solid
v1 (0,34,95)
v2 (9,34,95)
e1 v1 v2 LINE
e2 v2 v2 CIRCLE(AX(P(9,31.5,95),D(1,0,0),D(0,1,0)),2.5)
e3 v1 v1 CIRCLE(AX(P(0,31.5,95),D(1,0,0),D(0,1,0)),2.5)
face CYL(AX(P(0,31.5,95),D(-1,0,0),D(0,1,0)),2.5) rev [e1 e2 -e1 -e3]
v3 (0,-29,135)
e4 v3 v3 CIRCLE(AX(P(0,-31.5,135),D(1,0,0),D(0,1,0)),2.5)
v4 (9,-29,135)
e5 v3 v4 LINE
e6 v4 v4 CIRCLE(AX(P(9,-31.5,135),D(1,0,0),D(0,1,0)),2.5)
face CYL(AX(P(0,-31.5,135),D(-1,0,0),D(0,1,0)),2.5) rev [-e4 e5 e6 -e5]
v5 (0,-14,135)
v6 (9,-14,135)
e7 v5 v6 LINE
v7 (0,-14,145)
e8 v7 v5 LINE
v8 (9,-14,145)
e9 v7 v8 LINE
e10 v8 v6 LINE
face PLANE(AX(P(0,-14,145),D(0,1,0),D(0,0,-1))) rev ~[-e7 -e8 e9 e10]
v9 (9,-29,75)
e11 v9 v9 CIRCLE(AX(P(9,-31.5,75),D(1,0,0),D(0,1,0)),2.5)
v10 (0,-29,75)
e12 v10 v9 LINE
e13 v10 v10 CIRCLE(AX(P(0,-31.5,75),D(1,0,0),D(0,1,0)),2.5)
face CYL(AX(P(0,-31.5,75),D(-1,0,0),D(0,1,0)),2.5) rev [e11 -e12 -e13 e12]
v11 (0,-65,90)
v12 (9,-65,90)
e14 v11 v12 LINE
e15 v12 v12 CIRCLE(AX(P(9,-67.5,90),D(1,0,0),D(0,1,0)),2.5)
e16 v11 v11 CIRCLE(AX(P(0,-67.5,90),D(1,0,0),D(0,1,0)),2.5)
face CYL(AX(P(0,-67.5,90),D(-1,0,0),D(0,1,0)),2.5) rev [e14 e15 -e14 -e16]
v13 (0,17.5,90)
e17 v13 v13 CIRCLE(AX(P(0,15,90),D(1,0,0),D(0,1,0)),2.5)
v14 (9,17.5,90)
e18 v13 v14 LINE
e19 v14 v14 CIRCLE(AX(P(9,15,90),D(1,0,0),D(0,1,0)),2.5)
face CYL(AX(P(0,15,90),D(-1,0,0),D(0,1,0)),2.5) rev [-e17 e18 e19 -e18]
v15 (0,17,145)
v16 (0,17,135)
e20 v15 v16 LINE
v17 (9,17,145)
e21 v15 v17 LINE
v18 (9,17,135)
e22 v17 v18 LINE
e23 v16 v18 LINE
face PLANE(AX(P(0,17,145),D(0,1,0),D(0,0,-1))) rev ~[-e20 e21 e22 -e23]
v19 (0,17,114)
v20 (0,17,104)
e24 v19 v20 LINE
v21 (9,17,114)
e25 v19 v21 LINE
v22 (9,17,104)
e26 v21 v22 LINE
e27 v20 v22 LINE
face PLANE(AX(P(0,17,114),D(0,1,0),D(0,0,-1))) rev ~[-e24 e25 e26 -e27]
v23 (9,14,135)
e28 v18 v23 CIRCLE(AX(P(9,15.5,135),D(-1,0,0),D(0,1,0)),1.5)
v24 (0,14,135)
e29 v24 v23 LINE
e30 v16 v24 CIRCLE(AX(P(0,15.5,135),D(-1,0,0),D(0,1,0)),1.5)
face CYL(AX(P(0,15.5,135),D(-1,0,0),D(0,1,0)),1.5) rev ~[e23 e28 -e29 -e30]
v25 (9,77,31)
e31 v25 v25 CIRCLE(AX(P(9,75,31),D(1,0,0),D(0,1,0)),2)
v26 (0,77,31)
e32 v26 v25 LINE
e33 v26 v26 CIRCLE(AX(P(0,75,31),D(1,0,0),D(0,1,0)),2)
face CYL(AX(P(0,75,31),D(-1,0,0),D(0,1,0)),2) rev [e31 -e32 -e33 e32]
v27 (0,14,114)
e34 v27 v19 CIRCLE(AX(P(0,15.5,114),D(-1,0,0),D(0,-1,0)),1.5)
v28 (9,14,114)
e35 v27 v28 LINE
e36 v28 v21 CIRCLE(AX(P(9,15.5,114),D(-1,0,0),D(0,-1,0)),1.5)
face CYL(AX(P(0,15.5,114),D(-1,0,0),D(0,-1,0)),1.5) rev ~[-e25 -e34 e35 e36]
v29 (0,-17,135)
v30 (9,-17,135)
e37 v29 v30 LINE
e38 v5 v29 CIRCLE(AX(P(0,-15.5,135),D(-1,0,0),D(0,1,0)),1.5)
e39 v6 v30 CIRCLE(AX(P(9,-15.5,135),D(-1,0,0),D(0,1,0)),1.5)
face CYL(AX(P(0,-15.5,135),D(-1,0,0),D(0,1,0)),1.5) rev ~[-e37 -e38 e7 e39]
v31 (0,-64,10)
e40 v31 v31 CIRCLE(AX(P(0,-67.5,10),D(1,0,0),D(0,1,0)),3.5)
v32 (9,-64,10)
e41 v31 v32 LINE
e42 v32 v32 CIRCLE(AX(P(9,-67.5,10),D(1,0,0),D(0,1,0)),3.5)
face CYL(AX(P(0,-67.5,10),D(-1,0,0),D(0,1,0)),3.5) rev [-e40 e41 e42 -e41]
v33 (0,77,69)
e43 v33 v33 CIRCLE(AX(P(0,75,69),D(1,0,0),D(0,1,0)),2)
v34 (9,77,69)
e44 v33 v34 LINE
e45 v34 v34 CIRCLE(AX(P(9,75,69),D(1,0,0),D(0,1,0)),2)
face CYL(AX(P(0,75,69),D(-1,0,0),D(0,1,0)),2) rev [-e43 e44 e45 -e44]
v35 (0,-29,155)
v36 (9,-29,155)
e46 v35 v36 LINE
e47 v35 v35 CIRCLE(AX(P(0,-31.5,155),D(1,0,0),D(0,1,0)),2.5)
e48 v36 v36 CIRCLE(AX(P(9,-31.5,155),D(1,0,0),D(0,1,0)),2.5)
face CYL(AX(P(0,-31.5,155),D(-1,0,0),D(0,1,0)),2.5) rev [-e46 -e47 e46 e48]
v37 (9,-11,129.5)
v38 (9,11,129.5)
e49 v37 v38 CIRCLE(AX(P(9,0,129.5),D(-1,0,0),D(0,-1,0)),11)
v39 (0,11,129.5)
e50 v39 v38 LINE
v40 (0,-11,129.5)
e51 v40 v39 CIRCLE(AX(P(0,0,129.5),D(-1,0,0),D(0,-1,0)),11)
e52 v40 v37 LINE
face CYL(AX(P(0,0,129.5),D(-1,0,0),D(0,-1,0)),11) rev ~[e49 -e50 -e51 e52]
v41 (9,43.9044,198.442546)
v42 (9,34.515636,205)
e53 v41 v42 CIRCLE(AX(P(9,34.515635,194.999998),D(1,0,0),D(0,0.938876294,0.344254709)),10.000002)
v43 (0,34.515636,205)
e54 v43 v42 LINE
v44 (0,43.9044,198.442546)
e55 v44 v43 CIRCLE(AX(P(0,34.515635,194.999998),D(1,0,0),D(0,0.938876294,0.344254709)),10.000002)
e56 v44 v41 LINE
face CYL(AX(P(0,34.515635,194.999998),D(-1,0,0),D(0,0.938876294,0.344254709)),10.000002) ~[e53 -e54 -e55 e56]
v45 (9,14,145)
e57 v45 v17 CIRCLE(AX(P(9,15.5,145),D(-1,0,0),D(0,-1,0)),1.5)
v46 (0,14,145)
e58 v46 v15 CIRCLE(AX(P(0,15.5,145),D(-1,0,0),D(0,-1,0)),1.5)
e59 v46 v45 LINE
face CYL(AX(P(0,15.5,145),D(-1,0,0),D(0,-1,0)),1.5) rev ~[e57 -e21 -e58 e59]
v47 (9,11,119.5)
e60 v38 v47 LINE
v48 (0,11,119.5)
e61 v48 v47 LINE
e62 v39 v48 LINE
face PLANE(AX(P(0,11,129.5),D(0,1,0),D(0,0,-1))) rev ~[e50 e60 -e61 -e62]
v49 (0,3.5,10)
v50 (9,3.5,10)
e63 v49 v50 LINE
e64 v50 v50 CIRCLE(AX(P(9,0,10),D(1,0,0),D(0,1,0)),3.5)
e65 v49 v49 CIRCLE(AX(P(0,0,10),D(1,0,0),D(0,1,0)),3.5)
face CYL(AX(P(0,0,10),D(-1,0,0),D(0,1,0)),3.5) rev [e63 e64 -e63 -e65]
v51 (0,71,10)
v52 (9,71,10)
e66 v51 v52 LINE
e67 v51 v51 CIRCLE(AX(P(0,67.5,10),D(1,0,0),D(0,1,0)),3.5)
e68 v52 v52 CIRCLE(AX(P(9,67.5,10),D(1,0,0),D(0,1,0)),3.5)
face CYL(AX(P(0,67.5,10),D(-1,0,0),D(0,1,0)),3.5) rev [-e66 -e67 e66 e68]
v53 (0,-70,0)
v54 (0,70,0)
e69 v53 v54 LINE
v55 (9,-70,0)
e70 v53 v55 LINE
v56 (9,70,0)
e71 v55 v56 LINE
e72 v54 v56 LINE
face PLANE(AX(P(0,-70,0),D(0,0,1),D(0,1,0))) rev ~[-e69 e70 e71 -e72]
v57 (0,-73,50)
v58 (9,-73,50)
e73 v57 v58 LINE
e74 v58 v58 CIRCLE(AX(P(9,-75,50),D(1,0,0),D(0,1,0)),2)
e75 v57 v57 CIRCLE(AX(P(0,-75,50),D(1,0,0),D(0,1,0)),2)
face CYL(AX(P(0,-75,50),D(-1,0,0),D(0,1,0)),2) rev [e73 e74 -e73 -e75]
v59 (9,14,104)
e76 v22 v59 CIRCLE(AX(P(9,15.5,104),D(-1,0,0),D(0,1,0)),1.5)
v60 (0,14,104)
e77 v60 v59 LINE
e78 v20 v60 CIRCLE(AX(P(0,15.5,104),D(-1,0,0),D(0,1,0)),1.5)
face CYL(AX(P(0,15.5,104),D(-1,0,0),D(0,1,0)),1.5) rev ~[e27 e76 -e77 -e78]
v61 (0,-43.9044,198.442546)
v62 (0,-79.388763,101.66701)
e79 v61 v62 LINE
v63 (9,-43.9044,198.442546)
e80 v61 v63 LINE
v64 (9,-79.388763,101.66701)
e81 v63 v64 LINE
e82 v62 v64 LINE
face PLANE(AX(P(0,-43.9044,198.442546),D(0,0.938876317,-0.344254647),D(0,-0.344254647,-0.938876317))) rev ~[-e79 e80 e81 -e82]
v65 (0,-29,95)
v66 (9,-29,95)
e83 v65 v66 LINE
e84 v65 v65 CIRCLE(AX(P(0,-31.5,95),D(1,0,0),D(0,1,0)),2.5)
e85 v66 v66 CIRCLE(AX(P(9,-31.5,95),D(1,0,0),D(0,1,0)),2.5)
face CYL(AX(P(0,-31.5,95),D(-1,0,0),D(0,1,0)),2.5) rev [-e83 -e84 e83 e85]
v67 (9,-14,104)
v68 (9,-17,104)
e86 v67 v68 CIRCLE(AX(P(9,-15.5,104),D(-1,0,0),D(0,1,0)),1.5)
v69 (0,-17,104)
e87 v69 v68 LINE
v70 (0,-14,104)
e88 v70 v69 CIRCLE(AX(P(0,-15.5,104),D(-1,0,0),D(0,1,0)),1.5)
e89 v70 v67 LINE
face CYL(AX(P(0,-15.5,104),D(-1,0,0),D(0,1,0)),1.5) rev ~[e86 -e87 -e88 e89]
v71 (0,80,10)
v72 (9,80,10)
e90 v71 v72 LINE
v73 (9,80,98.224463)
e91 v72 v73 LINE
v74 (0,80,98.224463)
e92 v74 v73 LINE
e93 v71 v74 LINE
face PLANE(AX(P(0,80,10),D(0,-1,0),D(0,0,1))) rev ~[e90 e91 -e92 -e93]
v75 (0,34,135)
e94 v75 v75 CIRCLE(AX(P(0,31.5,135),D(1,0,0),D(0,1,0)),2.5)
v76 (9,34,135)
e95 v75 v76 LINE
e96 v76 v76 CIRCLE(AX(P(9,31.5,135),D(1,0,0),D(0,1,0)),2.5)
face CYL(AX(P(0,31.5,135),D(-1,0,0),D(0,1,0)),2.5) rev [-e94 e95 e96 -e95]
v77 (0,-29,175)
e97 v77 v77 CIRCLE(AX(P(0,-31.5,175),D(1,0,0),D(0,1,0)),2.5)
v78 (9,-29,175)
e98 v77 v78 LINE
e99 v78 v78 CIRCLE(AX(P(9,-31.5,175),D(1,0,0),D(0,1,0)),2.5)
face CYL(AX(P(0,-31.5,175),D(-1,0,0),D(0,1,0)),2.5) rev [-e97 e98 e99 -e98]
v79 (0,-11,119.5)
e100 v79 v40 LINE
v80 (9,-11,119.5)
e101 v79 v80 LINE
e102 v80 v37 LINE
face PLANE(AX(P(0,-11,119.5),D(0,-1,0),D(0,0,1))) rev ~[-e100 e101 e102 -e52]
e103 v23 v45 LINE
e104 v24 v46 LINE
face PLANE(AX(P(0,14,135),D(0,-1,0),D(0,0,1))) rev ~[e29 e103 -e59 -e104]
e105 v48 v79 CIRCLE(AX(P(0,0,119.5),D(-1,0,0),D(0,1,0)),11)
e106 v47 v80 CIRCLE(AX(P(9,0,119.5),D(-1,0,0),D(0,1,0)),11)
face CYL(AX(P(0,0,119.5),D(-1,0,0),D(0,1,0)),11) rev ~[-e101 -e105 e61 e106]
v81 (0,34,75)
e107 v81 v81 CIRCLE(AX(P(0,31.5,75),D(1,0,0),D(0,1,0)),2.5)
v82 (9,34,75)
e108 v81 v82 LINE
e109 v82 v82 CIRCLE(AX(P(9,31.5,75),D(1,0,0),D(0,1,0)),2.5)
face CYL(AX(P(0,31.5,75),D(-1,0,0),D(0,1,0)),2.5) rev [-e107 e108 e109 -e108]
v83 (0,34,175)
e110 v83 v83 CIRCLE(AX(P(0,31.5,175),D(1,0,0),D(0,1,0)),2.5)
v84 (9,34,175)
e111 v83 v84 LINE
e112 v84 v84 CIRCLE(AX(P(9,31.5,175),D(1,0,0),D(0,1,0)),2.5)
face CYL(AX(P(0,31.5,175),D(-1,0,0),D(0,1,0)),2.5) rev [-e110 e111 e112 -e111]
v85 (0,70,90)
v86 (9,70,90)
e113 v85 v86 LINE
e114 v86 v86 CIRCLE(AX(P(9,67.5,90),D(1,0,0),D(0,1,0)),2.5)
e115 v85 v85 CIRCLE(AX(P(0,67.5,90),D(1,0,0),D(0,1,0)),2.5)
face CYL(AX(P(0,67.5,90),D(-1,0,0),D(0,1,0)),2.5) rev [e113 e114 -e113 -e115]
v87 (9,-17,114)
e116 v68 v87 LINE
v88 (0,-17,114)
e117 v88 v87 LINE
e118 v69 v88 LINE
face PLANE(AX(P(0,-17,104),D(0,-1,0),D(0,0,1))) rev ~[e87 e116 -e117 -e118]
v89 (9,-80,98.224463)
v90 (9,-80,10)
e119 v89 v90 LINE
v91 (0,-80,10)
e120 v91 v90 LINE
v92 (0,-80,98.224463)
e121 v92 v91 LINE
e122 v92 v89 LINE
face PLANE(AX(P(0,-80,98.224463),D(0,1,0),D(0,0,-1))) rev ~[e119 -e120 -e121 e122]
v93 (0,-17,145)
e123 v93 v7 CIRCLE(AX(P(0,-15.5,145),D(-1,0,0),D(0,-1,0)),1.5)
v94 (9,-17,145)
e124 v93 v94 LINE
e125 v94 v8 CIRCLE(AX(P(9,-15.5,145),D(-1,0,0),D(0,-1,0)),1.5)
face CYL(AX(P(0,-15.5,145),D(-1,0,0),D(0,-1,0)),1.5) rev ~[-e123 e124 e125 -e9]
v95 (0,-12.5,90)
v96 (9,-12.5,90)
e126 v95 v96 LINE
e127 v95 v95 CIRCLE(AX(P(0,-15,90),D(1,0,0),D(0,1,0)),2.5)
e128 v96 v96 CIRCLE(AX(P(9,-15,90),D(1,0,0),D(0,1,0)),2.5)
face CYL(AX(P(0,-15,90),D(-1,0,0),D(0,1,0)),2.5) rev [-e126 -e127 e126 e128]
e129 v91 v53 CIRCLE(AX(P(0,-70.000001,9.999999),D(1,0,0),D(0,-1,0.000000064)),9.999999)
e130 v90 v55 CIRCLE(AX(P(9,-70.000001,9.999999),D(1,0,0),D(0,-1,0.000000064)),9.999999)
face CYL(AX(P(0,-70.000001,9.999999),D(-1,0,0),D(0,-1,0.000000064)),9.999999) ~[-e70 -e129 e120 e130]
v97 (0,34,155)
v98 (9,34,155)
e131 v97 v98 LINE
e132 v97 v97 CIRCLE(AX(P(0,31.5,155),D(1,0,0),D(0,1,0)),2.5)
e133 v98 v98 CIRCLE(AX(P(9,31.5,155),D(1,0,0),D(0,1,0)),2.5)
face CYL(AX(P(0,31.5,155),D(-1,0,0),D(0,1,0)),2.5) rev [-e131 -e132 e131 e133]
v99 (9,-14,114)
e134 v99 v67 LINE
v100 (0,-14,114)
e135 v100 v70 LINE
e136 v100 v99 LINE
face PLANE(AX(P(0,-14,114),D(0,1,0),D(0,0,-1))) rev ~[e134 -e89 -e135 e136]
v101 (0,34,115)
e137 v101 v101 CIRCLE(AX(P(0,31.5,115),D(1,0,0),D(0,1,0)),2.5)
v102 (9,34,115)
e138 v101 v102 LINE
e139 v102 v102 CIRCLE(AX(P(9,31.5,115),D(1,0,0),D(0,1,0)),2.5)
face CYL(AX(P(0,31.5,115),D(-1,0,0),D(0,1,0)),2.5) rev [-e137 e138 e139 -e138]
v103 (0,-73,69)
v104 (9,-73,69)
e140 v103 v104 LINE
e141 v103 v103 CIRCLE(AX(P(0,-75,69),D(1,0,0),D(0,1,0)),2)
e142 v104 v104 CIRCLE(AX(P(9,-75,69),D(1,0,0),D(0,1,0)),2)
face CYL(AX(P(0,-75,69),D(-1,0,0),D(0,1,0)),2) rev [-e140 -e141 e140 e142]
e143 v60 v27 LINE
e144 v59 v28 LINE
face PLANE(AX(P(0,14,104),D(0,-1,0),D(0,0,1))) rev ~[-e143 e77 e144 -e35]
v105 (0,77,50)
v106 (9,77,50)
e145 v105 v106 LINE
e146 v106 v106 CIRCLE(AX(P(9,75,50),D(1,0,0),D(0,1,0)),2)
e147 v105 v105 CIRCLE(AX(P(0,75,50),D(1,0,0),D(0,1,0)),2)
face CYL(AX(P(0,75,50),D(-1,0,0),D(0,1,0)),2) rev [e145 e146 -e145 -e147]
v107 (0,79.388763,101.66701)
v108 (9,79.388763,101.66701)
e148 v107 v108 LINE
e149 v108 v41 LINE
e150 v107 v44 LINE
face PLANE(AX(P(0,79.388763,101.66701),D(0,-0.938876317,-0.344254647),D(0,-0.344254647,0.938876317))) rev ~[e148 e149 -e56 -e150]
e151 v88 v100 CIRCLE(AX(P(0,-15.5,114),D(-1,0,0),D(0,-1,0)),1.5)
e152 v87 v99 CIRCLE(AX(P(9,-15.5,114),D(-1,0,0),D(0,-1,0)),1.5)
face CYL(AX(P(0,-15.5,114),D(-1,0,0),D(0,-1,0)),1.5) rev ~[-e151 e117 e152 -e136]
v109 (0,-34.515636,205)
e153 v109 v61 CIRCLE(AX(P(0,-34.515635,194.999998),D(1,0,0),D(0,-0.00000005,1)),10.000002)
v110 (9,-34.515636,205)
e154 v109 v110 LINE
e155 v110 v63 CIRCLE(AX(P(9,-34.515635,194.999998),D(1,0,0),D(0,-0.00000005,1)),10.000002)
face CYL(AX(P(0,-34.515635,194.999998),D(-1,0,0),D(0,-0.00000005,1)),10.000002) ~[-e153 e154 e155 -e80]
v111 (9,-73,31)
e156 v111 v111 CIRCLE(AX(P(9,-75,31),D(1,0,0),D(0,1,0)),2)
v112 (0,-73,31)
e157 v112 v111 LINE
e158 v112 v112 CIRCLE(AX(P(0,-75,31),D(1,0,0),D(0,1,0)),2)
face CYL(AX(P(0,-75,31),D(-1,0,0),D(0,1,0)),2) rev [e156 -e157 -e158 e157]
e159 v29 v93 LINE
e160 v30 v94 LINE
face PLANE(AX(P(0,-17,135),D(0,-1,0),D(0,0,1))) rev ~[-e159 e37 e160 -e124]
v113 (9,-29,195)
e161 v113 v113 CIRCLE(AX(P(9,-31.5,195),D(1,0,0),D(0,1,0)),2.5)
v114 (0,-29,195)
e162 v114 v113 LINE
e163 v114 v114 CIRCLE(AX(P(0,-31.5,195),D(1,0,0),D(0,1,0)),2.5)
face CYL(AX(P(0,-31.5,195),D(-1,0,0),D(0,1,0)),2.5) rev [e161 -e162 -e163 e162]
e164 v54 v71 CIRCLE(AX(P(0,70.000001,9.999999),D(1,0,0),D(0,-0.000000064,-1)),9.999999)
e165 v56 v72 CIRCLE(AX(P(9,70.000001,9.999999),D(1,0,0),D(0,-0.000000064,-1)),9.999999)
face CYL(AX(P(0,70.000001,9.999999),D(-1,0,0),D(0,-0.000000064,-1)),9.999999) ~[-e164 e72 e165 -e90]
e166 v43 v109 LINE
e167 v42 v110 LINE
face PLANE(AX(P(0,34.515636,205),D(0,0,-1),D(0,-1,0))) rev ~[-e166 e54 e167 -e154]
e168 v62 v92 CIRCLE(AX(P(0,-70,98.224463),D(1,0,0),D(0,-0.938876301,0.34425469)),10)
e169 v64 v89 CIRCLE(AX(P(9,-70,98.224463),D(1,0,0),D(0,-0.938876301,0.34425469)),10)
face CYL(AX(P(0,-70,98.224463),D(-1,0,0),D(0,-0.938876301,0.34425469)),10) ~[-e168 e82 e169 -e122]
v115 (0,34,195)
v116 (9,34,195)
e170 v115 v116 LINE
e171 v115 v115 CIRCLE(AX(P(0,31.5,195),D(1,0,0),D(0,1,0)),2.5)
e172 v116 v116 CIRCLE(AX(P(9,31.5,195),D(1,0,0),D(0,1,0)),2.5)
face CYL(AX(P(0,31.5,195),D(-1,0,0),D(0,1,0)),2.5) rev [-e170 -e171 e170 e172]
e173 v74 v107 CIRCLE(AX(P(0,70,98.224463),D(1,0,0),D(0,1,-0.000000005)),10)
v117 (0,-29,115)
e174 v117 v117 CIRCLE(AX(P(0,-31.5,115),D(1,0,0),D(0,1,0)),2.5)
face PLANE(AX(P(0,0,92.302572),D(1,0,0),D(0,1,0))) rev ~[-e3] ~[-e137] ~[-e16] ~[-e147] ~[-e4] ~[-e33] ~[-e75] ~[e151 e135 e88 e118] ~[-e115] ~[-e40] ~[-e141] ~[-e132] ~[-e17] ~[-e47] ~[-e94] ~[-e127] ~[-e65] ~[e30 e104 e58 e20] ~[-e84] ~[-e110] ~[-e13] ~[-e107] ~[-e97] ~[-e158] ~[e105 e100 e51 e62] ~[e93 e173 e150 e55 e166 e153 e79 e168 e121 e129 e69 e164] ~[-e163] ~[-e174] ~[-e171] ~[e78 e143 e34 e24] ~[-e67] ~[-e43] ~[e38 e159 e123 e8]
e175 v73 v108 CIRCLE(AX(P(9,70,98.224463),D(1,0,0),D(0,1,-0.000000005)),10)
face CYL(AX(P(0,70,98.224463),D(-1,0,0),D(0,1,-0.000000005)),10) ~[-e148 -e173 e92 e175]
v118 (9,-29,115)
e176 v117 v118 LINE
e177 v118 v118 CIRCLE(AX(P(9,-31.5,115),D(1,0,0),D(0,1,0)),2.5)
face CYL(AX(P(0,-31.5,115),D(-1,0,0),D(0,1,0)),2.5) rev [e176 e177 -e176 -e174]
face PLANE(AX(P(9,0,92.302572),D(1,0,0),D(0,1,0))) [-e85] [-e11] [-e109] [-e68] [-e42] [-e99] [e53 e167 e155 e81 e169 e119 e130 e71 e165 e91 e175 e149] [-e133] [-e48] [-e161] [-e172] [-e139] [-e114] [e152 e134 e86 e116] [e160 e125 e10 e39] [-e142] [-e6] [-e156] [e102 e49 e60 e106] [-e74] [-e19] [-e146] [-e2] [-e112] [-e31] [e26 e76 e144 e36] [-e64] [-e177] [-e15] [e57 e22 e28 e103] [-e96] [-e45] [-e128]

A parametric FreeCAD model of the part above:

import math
import FreeCAD as App
import Part
import Sketcher
from FreeCAD import Vector
Q = App.Units.Quantity

doc = App.newDocument("Part")
params = doc.addObject("Spreadsheet::Sheet", "Params")
for row, (alias, value) in enumerate([
    ("sketch1_diameter", "7 mm"),
    ("sketch1_diameter2", "4 mm"),
    ("sketch1_diameter3", "4 mm"),
    ("sketch1_diameter4", "4 mm"),
    ("sketch1_diameter5", "5 mm"),
    ("pad1_length", "9 mm"),
], start=1):
    params.set(f"A{row}", alias)
    params.set(f"B{row}", "=" + value)
    params.setAlias(f"B{row}", alias)

body = doc.addObject("PartDesign::Body", "Body")

sketch1 = body.newObject("Sketcher::SketchObject", "Sketch")
sketch1.AttachmentSupport = (doc.getObject("YZ_Plane"), [""])
sketch1.MapMode = "FlatFace"
sketch1.addGeometry(Part.LineSegment(Vector(34.515636, 205, 0), Vector(-34.515636, 205, 0)), False)
sketch1.addGeometry(Part.ArcOfCircle(Part.Circle(Vector(-34.515635, 194.999998, 0), Vector(0, 0, 1), 10.000002), math.radians(90.000003), math.radians(159.863693)), False)
sketch1.addGeometry(Part.LineSegment(Vector(-43.9044, 198.442546, 0), Vector(-79.388763, 101.66701, 0)), False)
sketch1.addGeometry(Part.ArcOfCircle(Part.Circle(Vector(-70, 98.224463, 0), Vector(0, 0, 1), 10), math.radians(159.863694), math.radians(180)), False)
sketch1.addGeometry(Part.LineSegment(Vector(-80, 98.224463, 0), Vector(-80, 10, 0)), False)
sketch1.addGeometry(Part.ArcOfCircle(Part.Circle(Vector(-70.000001, 9.999999, 0), Vector(0, 0, 1), 9.999999), math.radians(179.999996), math.radians(270.000004)), False)
sketch1.addGeometry(Part.LineSegment(Vector(-70, 0, 0), Vector(70, 0, 0)), False)
sketch1.addGeometry(Part.ArcOfCircle(Part.Circle(Vector(70.000001, 9.999999, 0), Vector(0, 0, 1), 9.999999), math.radians(-90.000004), math.radians(0.000004)), False)
sketch1.addGeometry(Part.LineSegment(Vector(80, 10, 0), Vector(80, 98.224463, 0)), False)
sketch1.addGeometry(Part.ArcOfCircle(Part.Circle(Vector(70, 98.224463, 0), Vector(0, 0, 1), 10), math.radians(0), math.radians(20.136306)), False)
sketch1.addGeometry(Part.LineSegment(Vector(79.388763, 101.66701, 0), Vector(43.9044, 198.442546, 0)), False)
sketch1.addGeometry(Part.ArcOfCircle(Part.Circle(Vector(34.515635, 194.999998, 0), Vector(0, 0, 1), 10.000002), math.radians(20.136307), math.radians(89.999997)), False)
sketch1.addGeometry(Part.Circle(Vector(-67.5, 10, 0), Vector(0, 0, 1), 3.5), False)
sketch1.addGeometry(Part.Circle(Vector(-75, 31, 0), Vector(0, 0, 1), 2), False)
sketch1.addGeometry(Part.Circle(Vector(-75, 50, 0), Vector(0, 0, 1), 2), False)
sketch1.addGeometry(Part.Circle(Vector(-75, 69, 0), Vector(0, 0, 1), 2), False)
sketch1.addGeometry(Part.Circle(Vector(-67.5, 90, 0), Vector(0, 0, 1), 2.5), False)
sketch1.addGeometry(Part.Circle(Vector(-31.5, 75, 0), Vector(0, 0, 1), 2.5), False)
sketch1.addGeometry(Part.Circle(Vector(-31.5, 95, 0), Vector(0, 0, 1), 2.5), False)
sketch1.addGeometry(Part.Circle(Vector(-15, 90, 0), Vector(0, 0, 1), 2.5), False)
sketch1.addGeometry(Part.Circle(Vector(0, 10, 0), Vector(0, 0, 1), 3.5), False)
sketch1.addGeometry(Part.Circle(Vector(67.5, 10, 0), Vector(0, 0, 1), 3.5), False)
sketch1.addGeometry(Part.Circle(Vector(75, 31, 0), Vector(0, 0, 1), 2), False)
sketch1.addGeometry(Part.Circle(Vector(75, 50, 0), Vector(0, 0, 1), 2), False)
sketch1.addGeometry(Part.Circle(Vector(31.5, 75, 0), Vector(0, 0, 1), 2.5), False)
sketch1.addGeometry(Part.Circle(Vector(15, 90, 0), Vector(0, 0, 1), 2.5), False)
sketch1.addGeometry(Part.Circle(Vector(31.5, 95, 0), Vector(0, 0, 1), 2.5), False)
sketch1.addGeometry(Part.Circle(Vector(75, 69, 0), Vector(0, 0, 1), 2), False)
sketch1.addGeometry(Part.Circle(Vector(67.5, 90, 0), Vector(0, 0, 1), 2.5), False)
sketch1.addGeometry(Part.Circle(Vector(-31.5, 115, 0), Vector(0, 0, 1), 2.5), False)
sketch1.addGeometry(Part.LineSegment(Vector(-14, 114, 0), Vector(-14, 104, 0)), False)
sketch1.addGeometry(Part.ArcOfCircle(Part.Circle(Vector(-15.5, 104, 0), Vector(0, 0, 1), 1.5), math.radians(180), math.radians(360)), False)
sketch1.addGeometry(Part.LineSegment(Vector(-17, 104, 0), Vector(-17, 114, 0)), False)
sketch1.addGeometry(Part.ArcOfCircle(Part.Circle(Vector(-15.5, 114, 0), Vector(0, 0, 1), 1.5), math.radians(0), math.radians(180)), False)
sketch1.addGeometry(Part.Circle(Vector(-31.5, 135, 0), Vector(0, 0, 1), 2.5), False)
sketch1.addGeometry(Part.LineSegment(Vector(-17, 135, 0), Vector(-17, 145, 0)), False)
sketch1.addGeometry(Part.ArcOfCircle(Part.Circle(Vector(-15.5, 145, 0), Vector(0, 0, 1), 1.5), math.radians(0), math.radians(180)), False)
sketch1.addGeometry(Part.LineSegment(Vector(-14, 145, 0), Vector(-14, 135, 0)), False)
sketch1.addGeometry(Part.ArcOfCircle(Part.Circle(Vector(-15.5, 135, 0), Vector(0, 0, 1), 1.5), math.radians(180), math.radians(360)), False)
sketch1.addGeometry(Part.Circle(Vector(-31.5, 155, 0), Vector(0, 0, 1), 2.5), False)
sketch1.addGeometry(Part.Circle(Vector(-31.5, 175, 0), Vector(0, 0, 1), 2.5), False)
sketch1.addGeometry(Part.Circle(Vector(-31.5, 195, 0), Vector(0, 0, 1), 2.5), False)
sketch1.addGeometry(Part.ArcOfCircle(Part.Circle(Vector(15.5, 114, 0), Vector(0, 0, 1), 1.5), math.radians(0), math.radians(180)), False)
sketch1.addGeometry(Part.LineSegment(Vector(17, 114, 0), Vector(17, 104, 0)), False)
sketch1.addGeometry(Part.ArcOfCircle(Part.Circle(Vector(15.5, 104, 0), Vector(0, 0, 1), 1.5), math.radians(180), math.radians(360)), False)
sketch1.addGeometry(Part.LineSegment(Vector(14, 104, 0), Vector(14, 114, 0)), False)
sketch1.addGeometry(Part.LineSegment(Vector(-11, 119.5, 0), Vector(-11, 129.5, 0)), False)
sketch1.addGeometry(Part.ArcOfCircle(Part.Circle(Vector(0, 129.5, 0), Vector(0, 0, 1), 11), math.radians(0), math.radians(180)), False)
sketch1.addGeometry(Part.LineSegment(Vector(11, 129.5, 0), Vector(11, 119.5, 0)), False)
sketch1.addGeometry(Part.ArcOfCircle(Part.Circle(Vector(0, 119.5, 0), Vector(0, 0, 1), 11), math.radians(180), math.radians(360)), False)
sketch1.addGeometry(Part.Circle(Vector(31.5, 115, 0), Vector(0, 0, 1), 2.5), False)
sketch1.addGeometry(Part.ArcOfCircle(Part.Circle(Vector(15.5, 135, 0), Vector(0, 0, 1), 1.5), math.radians(180), math.radians(360)), False)
sketch1.addGeometry(Part.LineSegment(Vector(14, 135, 0), Vector(14, 145, 0)), False)
sketch1.addGeometry(Part.ArcOfCircle(Part.Circle(Vector(15.5, 145, 0), Vector(0, 0, 1), 1.5), math.radians(0), math.radians(180)), False)
sketch1.addGeometry(Part.LineSegment(Vector(17, 145, 0), Vector(17, 135, 0)), False)
sketch1.addGeometry(Part.Circle(Vector(31.5, 135, 0), Vector(0, 0, 1), 2.5), False)
sketch1.addGeometry(Part.Circle(Vector(31.5, 155, 0), Vector(0, 0, 1), 2.5), False)
sketch1.addGeometry(Part.Circle(Vector(31.5, 175, 0), Vector(0, 0, 1), 2.5), False)
sketch1.addGeometry(Part.Circle(Vector(31.5, 195, 0), Vector(0, 0, 1), 2.5), False)
sketch1.addConstraint(Sketcher.Constraint("Coincident", 0, 2, 1, 1))
sketch1.addConstraint(Sketcher.Constraint("Coincident", 1, 2, 2, 1))
sketch1.addConstraint(Sketcher.Constraint("Coincident", 2, 2, 3, 1))
sketch1.addConstraint(Sketcher.Constraint("Coincident", 3, 2, 4, 1))
sketch1.addConstraint(Sketcher.Constraint("Coincident", 4, 2, 5, 1))
sketch1.addConstraint(Sketcher.Constraint("Coincident", 5, 2, 6, 1))
sketch1.addConstraint(Sketcher.Constraint("Coincident", 6, 2, 7, 1))
sketch1.addConstraint(Sketcher.Constraint("Coincident", 7, 2, 8, 1))
sketch1.addConstraint(Sketcher.Constraint("Coincident", 8, 2, 9, 1))
sketch1.addConstraint(Sketcher.Constraint("Coincident", 9, 2, 10, 1))
sketch1.addConstraint(Sketcher.Constraint("Coincident", 10, 2, 11, 1))
sketch1.addConstraint(Sketcher.Constraint("Coincident", 11, 2, 0, 1))
sketch1.addConstraint(Sketcher.Constraint("Coincident", 30, 2, 31, 2))
sketch1.addConstraint(Sketcher.Constraint("Coincident", 31, 1, 32, 1))
sketch1.addConstraint(Sketcher.Constraint("Coincident", 32, 2, 33, 2))
sketch1.addConstraint(Sketcher.Constraint("Coincident", 33, 1, 30, 1))
sketch1.addConstraint(Sketcher.Constraint("Coincident", 35, 2, 36, 2))
sketch1.addConstraint(Sketcher.Constraint("Coincident", 36, 1, 37, 1))
sketch1.addConstraint(Sketcher.Constraint("Coincident", 37, 2, 38, 2))
sketch1.addConstraint(Sketcher.Constraint("Coincident", 38, 1, 35, 1))
sketch1.addConstraint(Sketcher.Constraint("Coincident", 42, 1, 43, 1))
sketch1.addConstraint(Sketcher.Constraint("Coincident", 43, 2, 44, 2))
sketch1.addConstraint(Sketcher.Constraint("Coincident", 44, 1, 45, 1))
sketch1.addConstraint(Sketcher.Constraint("Coincident", 45, 2, 42, 2))
sketch1.addConstraint(Sketcher.Constraint("Coincident", 46, 2, 47, 2))
sketch1.addConstraint(Sketcher.Constraint("Coincident", 47, 1, 48, 1))
sketch1.addConstraint(Sketcher.Constraint("Coincident", 48, 2, 49, 2))
sketch1.addConstraint(Sketcher.Constraint("Coincident", 49, 1, 46, 1))
sketch1.addConstraint(Sketcher.Constraint("Coincident", 51, 1, 52, 1))
sketch1.addConstraint(Sketcher.Constraint("Coincident", 52, 2, 53, 2))
sketch1.addConstraint(Sketcher.Constraint("Coincident", 53, 1, 54, 1))
sketch1.addConstraint(Sketcher.Constraint("Coincident", 54, 2, 51, 2))
sketch1.addConstraint(Sketcher.Constraint("Horizontal", 0))
sketch1.addConstraint(Sketcher.Constraint("Vertical", 4))
sketch1.addConstraint(Sketcher.Constraint("Horizontal", 6))
sketch1.addConstraint(Sketcher.Constraint("Vertical", 8))
sketch1.addConstraint(Sketcher.Constraint("Vertical", 30))
sketch1.addConstraint(Sketcher.Constraint("Vertical", 32))
sketch1.addConstraint(Sketcher.Constraint("Vertical", 35))
sketch1.addConstraint(Sketcher.Constraint("Vertical", 37))
sketch1.addConstraint(Sketcher.Constraint("Vertical", 43))
sketch1.addConstraint(Sketcher.Constraint("Vertical", 45))
sketch1.addConstraint(Sketcher.Constraint("Vertical", 46))
sketch1.addConstraint(Sketcher.Constraint("Vertical", 48))
sketch1.addConstraint(Sketcher.Constraint("Vertical", 52))
sketch1.addConstraint(Sketcher.Constraint("Vertical", 54))
sketch1.addConstraint(Sketcher.Constraint("PointOnObject", 20, 3, -2))
sketch1.addConstraint(Sketcher.Constraint("PointOnObject", 47, 3, -2))
sketch1.addConstraint(Sketcher.Constraint("PointOnObject", 5, 2, -1))
sketch1.addConstraint(Sketcher.Constraint("Diameter", 12, Q("7 mm")))
sketch1.addConstraint(Sketcher.Constraint("Diameter", 13, Q("4 mm")))
sketch1.addConstraint(Sketcher.Constraint("Diameter", 14, Q("4 mm")))
sketch1.addConstraint(Sketcher.Constraint("Diameter", 15, Q("4 mm")))
sketch1.addConstraint(Sketcher.Constraint("Diameter", 16, Q("5 mm")))
sketch1.addConstraint(Sketcher.Constraint("Diameter", 17, Q("5 mm")))
sketch1.addConstraint(Sketcher.Constraint("Diameter", 18, Q("5 mm")))
sketch1.addConstraint(Sketcher.Constraint("Diameter", 19, Q("5 mm")))
sketch1.addConstraint(Sketcher.Constraint("Diameter", 20, Q("7 mm")))
sketch1.addConstraint(Sketcher.Constraint("Diameter", 21, Q("7 mm")))
sketch1.addConstraint(Sketcher.Constraint("Diameter", 22, Q("4 mm")))
sketch1.addConstraint(Sketcher.Constraint("Diameter", 23, Q("4 mm")))
sketch1.addConstraint(Sketcher.Constraint("Diameter", 24, Q("5 mm")))
sketch1.addConstraint(Sketcher.Constraint("Diameter", 25, Q("5 mm")))
sketch1.addConstraint(Sketcher.Constraint("Diameter", 26, Q("5 mm")))
sketch1.addConstraint(Sketcher.Constraint("Diameter", 27, Q("4 mm")))
sketch1.addConstraint(Sketcher.Constraint("Diameter", 28, Q("5 mm")))
sketch1.addConstraint(Sketcher.Constraint("Diameter", 29, Q("5 mm")))
sketch1.addConstraint(Sketcher.Constraint("Diameter", 34, Q("5 mm")))
sketch1.addConstraint(Sketcher.Constraint("Diameter", 39, Q("5 mm")))
sketch1.addConstraint(Sketcher.Constraint("Diameter", 40, Q("5 mm")))
sketch1.addConstraint(Sketcher.Constraint("Diameter", 41, Q("5 mm")))
sketch1.addConstraint(Sketcher.Constraint("Diameter", 50, Q("5 mm")))
sketch1.addConstraint(Sketcher.Constraint("Diameter", 55, Q("5 mm")))
sketch1.addConstraint(Sketcher.Constraint("Diameter", 56, Q("5 mm")))
sketch1.addConstraint(Sketcher.Constraint("Diameter", 57, Q("5 mm")))
sketch1.addConstraint(Sketcher.Constraint("Diameter", 58, Q("5 mm")))
sketch1.addConstraint(Sketcher.Constraint("Radius", 1, Q("10.000002 mm")))
sketch1.addConstraint(Sketcher.Constraint("Radius", 3, Q("10 mm")))
sketch1.addConstraint(Sketcher.Constraint("Radius", 5, Q("9.999999 mm")))
sketch1.addConstraint(Sketcher.Constraint("Radius", 7, Q("9.999999 mm")))
sketch1.addConstraint(Sketcher.Constraint("Radius", 9, Q("10 mm")))
sketch1.addConstraint(Sketcher.Constraint("Radius", 11, Q("10.000002 mm")))
sketch1.addConstraint(Sketcher.Constraint("Radius", 47, Q("11 mm")))
sketch1.addConstraint(Sketcher.Constraint("Radius", 31, Q("1.5 mm")))
sketch1.addConstraint(Sketcher.Constraint("Radius", 36, Q("1.5 mm")))
sketch1.addConstraint(Sketcher.Constraint("Radius", 42, Q("1.5 mm")))
sketch1.addConstraint(Sketcher.Constraint("Radius", 51, Q("1.5 mm")))
sketch1.addConstraint(Sketcher.Constraint("DistanceX", 6, 1, 6, 2, Q("140 mm")))
sketch1.addConstraint(Sketcher.Constraint("DistanceY", 30, 2, 30, 1, Q("10 mm")))
sketch1.addConstraint(Sketcher.Constraint("DistanceY", 32, 1, 32, 2, Q("10 mm")))
sketch1.addConstraint(Sketcher.Constraint("DistanceY", 35, 1, 35, 2, Q("10 mm")))
sketch1.addConstraint(Sketcher.Constraint("DistanceY", 37, 2, 37, 1, Q("10 mm")))
sketch1.addConstraint(Sketcher.Constraint("DistanceY", 43, 2, 43, 1, Q("10 mm")))
sketch1.addConstraint(Sketcher.Constraint("DistanceY", 45, 1, 45, 2, Q("10 mm")))
sketch1.addConstraint(Sketcher.Constraint("DistanceY", 46, 1, 46, 2, Q("10 mm")))
sketch1.addConstraint(Sketcher.Constraint("DistanceY", 48, 2, 48, 1, Q("10 mm")))
sketch1.addConstraint(Sketcher.Constraint("DistanceY", 52, 1, 52, 2, Q("10 mm")))
sketch1.addConstraint(Sketcher.Constraint("DistanceY", 54, 2, 54, 1, Q("10 mm")))
sketch1.addConstraint(Sketcher.Constraint("DistanceY", -1, 1, 1, 3, Q("194.999998 mm")))
sketch1.addConstraint(Sketcher.Constraint("DistanceX", 3, 3, -1, 1, Q("70 mm")))
sketch1.addConstraint(Sketcher.Constraint("DistanceX", -1, 1, 7, 3, Q("70.000001 mm")))
sketch1.addConstraint(Sketcher.Constraint("DistanceY", -1, 1, 12, 3, Q("10 mm")))
sketch1.addConstraint(Sketcher.Constraint("DistanceX", 13, 3, -1, 1, Q("75 mm")))
sketch1.addConstraint(Sketcher.Constraint("DistanceY", -1, 1, 13, 3, Q("31 mm")))
sketch1.addConstraint(Sketcher.Constraint("DistanceX", 14, 3, -1, 1, Q("75 mm")))
sketch1.addConstraint(Sketcher.Constraint("DistanceY", -1, 1, 14, 3, Q("50 mm")))
sketch1.addConstraint(Sketcher.Constraint("DistanceX", 15, 3, -1, 1, Q("75 mm")))
sketch1.addConstraint(Sketcher.Constraint("DistanceY", -1, 1, 15, 3, Q("69 mm")))
sketch1.addConstraint(Sketcher.Constraint("DistanceY", -1, 1, 16, 3, Q("90 mm")))
sketch1.addConstraint(Sketcher.Constraint("DistanceY", -1, 1, 17, 3, Q("75 mm")))
sketch1.addConstraint(Sketcher.Constraint("DistanceY", -1, 1, 18, 3, Q("95 mm")))
sketch1.addConstraint(Sketcher.Constraint("DistanceX", 19, 3, -1, 1, Q("15 mm")))
sketch1.addConstraint(Sketcher.Constraint("DistanceY", -1, 1, 19, 3, Q("90 mm")))
sketch1.addConstraint(Sketcher.Constraint("DistanceY", -1, 1, 20, 3, Q("10 mm")))
sketch1.addConstraint(Sketcher.Constraint("DistanceY", -1, 1, 21, 3, Q("10 mm")))
sketch1.addConstraint(Sketcher.Constraint("DistanceX", -1, 1, 22, 3, Q("75 mm")))
sketch1.addConstraint(Sketcher.Constraint("DistanceY", -1, 1, 22, 3, Q("31 mm")))
sketch1.addConstraint(Sketcher.Constraint("DistanceX", -1, 1, 23, 3, Q("75 mm")))
sketch1.addConstraint(Sketcher.Constraint("DistanceY", -1, 1, 23, 3, Q("50 mm")))
sketch1.addConstraint(Sketcher.Constraint("DistanceY", -1, 1, 24, 3, Q("75 mm")))
sketch1.addConstraint(Sketcher.Constraint("DistanceX", -1, 1, 25, 3, Q("15 mm")))
sketch1.addConstraint(Sketcher.Constraint("DistanceY", -1, 1, 25, 3, Q("90 mm")))
sketch1.addConstraint(Sketcher.Constraint("DistanceY", -1, 1, 26, 3, Q("95 mm")))
sketch1.addConstraint(Sketcher.Constraint("DistanceX", -1, 1, 27, 3, Q("75 mm")))
sketch1.addConstraint(Sketcher.Constraint("DistanceY", -1, 1, 27, 3, Q("69 mm")))
sketch1.addConstraint(Sketcher.Constraint("DistanceY", -1, 1, 28, 3, Q("90 mm")))
sketch1.addConstraint(Sketcher.Constraint("DistanceY", -1, 1, 29, 3, Q("115 mm")))
sketch1.addConstraint(Sketcher.Constraint("DistanceY", -1, 1, 31, 3, Q("104 mm")))
sketch1.addConstraint(Sketcher.Constraint("DistanceY", -1, 1, 33, 3, Q("114 mm")))
sketch1.addConstraint(Sketcher.Constraint("DistanceY", -1, 1, 34, 3, Q("135 mm")))
sketch1.addConstraint(Sketcher.Constraint("DistanceY", -1, 1, 36, 3, Q("145 mm")))
sketch1.addConstraint(Sketcher.Constraint("DistanceY", -1, 1, 38, 3, Q("135 mm")))
sketch1.addConstraint(Sketcher.Constraint("DistanceY", -1, 1, 39, 3, Q("155 mm")))
sketch1.addConstraint(Sketcher.Constraint("DistanceY", -1, 1, 40, 3, Q("175 mm")))
sketch1.addConstraint(Sketcher.Constraint("DistanceY", -1, 1, 41, 3, Q("195 mm")))
sketch1.addConstraint(Sketcher.Constraint("DistanceY", -1, 1, 42, 3, Q("114 mm")))
sketch1.addConstraint(Sketcher.Constraint("DistanceY", -1, 1, 44, 3, Q("104 mm")))
sketch1.addConstraint(Sketcher.Constraint("DistanceY", -1, 1, 50, 3, Q("115 mm")))
sketch1.addConstraint(Sketcher.Constraint("DistanceY", -1, 1, 51, 3, Q("135 mm")))
sketch1.addConstraint(Sketcher.Constraint("DistanceY", -1, 1, 53, 3, Q("145 mm")))
sketch1.addConstraint(Sketcher.Constraint("DistanceY", -1, 1, 55, 3, Q("135 mm")))
sketch1.addConstraint(Sketcher.Constraint("DistanceY", -1, 1, 56, 3, Q("155 mm")))
sketch1.addConstraint(Sketcher.Constraint("DistanceY", -1, 1, 57, 3, Q("175 mm")))
sketch1.addConstraint(Sketcher.Constraint("DistanceY", -1, 1, 58, 3, Q("195 mm")))
sketch1.addConstraint(Sketcher.Constraint("DistanceY", -1, 1, 4, 2, Q("10 mm")))
sketch1.addConstraint(Sketcher.Constraint("DistanceX", 5, 2, -1, 1, Q("70 mm")))
sketch1.addConstraint(Sketcher.Constraint("DistanceY", -1, 1, 7, 2, Q("10 mm")))
sketch1.addConstraint(Sketcher.Constraint("DistanceX", 30, 2, -1, 1, Q("14 mm")))
sketch1.addConstraint(Sketcher.Constraint("DistanceY", -1, 1, 30, 2, Q("104 mm")))
sketch1.addConstraint(Sketcher.Constraint("DistanceY", -1, 1, 31, 1, Q("104 mm")))
sketch1.addConstraint(Sketcher.Constraint("DistanceX", 35, 2, -1, 1, Q("17 mm")))
sketch1.addConstraint(Sketcher.Constraint("DistanceY", -1, 1, 35, 2, Q("145 mm")))
sketch1.addConstraint(Sketcher.Constraint("DistanceY", -1, 1, 36, 1, Q("145 mm")))
sketch1.addConstraint(Sketcher.Constraint("DistanceX", -1, 1, 42, 1, Q("17 mm")))
sketch1.addConstraint(Sketcher.Constraint("DistanceY", -1, 1, 42, 1, Q("114 mm")))
sketch1.addConstraint(Sketcher.Constraint("DistanceY", -1, 1, 44, 1, Q("104 mm")))
sketch1.addConstraint(Sketcher.Constraint("DistanceX", -1, 1, 51, 1, Q("14 mm")))
sketch1.addConstraint(Sketcher.Constraint("DistanceY", -1, 1, 51, 1, Q("135 mm")))
sketch1.addConstraint(Sketcher.Constraint("DistanceY", -1, 1, 53, 1, Q("145 mm")))
sketch1.addConstraint(Sketcher.Constraint("DistanceX", 12, 3, -1, 1, Q("67.5 mm")))
sketch1.addConstraint(Sketcher.Constraint("DistanceX", 16, 3, -1, 1, Q("67.5 mm")))
sketch1.addConstraint(Sketcher.Constraint("DistanceX", 17, 3, -1, 1, Q("31.5 mm")))
sketch1.addConstraint(Sketcher.Constraint("DistanceX", 18, 3, -1, 1, Q("31.5 mm")))
sketch1.addConstraint(Sketcher.Constraint("DistanceX", -1, 1, 21, 3, Q("67.5 mm")))
sketch1.addConstraint(Sketcher.Constraint("DistanceX", -1, 1, 24, 3, Q("31.5 mm")))
sketch1.addConstraint(Sketcher.Constraint("DistanceX", -1, 1, 26, 3, Q("31.5 mm")))
sketch1.addConstraint(Sketcher.Constraint("DistanceX", -1, 1, 28, 3, Q("67.5 mm")))
sketch1.addConstraint(Sketcher.Constraint("DistanceX", 29, 3, -1, 1, Q("31.5 mm")))
sketch1.addConstraint(Sketcher.Constraint("DistanceX", 34, 3, -1, 1, Q("31.5 mm")))
sketch1.addConstraint(Sketcher.Constraint("DistanceX", 39, 3, -1, 1, Q("31.5 mm")))
sketch1.addConstraint(Sketcher.Constraint("DistanceX", 40, 3, -1, 1, Q("31.5 mm")))
sketch1.addConstraint(Sketcher.Constraint("DistanceX", 41, 3, -1, 1, Q("31.5 mm")))
sketch1.addConstraint(Sketcher.Constraint("DistanceY", -1, 1, 47, 3, Q("129.5 mm")))
sketch1.addConstraint(Sketcher.Constraint("DistanceY", -1, 1, 49, 3, Q("119.5 mm")))
sketch1.addConstraint(Sketcher.Constraint("DistanceX", -1, 1, 50, 3, Q("31.5 mm")))
sketch1.addConstraint(Sketcher.Constraint("DistanceX", -1, 1, 55, 3, Q("31.5 mm")))
sketch1.addConstraint(Sketcher.Constraint("DistanceX", -1, 1, 56, 3, Q("31.5 mm")))
sketch1.addConstraint(Sketcher.Constraint("DistanceX", -1, 1, 57, 3, Q("31.5 mm")))
sketch1.addConstraint(Sketcher.Constraint("DistanceX", -1, 1, 58, 3, Q("31.5 mm")))
sketch1.addConstraint(Sketcher.Constraint("DistanceY", -1, 1, 46, 2, Q("129.5 mm")))
sketch1.addConstraint(Sketcher.Constraint("DistanceY", -1, 1, 47, 1, Q("129.5 mm")))
sketch1.addConstraint(Sketcher.Constraint("DistanceX", 0, 2, 0, 1, Q("69.031272 mm")))
sketch1.addConstraint(Sketcher.Constraint("DistanceX", 1, 2, -1, 1, Q("43.9044 mm")))
sketch1.addConstraint(Sketcher.Constraint("DistanceX", -1, 1, 10, 2, Q("43.9044 mm")))
sketch1.addConstraint(Sketcher.Constraint("DistanceY", 4, 2, 4, 1, Q("88.224463 mm")))
sketch1.addConstraint(Sketcher.Constraint("DistanceY", 8, 1, 8, 2, Q("88.224463 mm")))
sketch1.addConstraint(Sketcher.Constraint("DistanceY", -1, 1, 2, 2, Q("101.66701 mm")))
sketch1.addConstraint(Sketcher.Constraint("DistanceY", -1, 1, 9, 2, Q("101.66701 mm")))
sketch1.addConstraint(Sketcher.Constraint("Distance", 2, Q("103.075916 mm")))
sketch1.addConstraint(Sketcher.Constraint("Distance", 10, Q("103.075916 mm")))
sketch1.addConstraint(Sketcher.Constraint("DistanceX", 1, 3, -1, 1, Q("34.515635 mm")))
sketch1.addConstraint(Sketcher.Constraint("DistanceY", -1, 1, 9, 3, Q("98.224463 mm")))
sketch1.addConstraint(Sketcher.Constraint("DistanceX", 0, 2, -1, 1, Q("34.515636 mm")))
sketch1.setExpression("Constraints[49]", "Params.sketch1_diameter")
sketch1.setExpression("Constraints[50]", "Params.sketch1_diameter2")
sketch1.setExpression("Constraints[51]", "Params.sketch1_diameter3")
sketch1.setExpression("Constraints[52]", "Params.sketch1_diameter4")
sketch1.setExpression("Constraints[53]", "Params.sketch1_diameter5")
pad1 = body.newObject("PartDesign::Pad", "Pad")
pad1.Profile = sketch1
pad1.setExpression("Length", "Params.pad1_length")

doc.recompute()
